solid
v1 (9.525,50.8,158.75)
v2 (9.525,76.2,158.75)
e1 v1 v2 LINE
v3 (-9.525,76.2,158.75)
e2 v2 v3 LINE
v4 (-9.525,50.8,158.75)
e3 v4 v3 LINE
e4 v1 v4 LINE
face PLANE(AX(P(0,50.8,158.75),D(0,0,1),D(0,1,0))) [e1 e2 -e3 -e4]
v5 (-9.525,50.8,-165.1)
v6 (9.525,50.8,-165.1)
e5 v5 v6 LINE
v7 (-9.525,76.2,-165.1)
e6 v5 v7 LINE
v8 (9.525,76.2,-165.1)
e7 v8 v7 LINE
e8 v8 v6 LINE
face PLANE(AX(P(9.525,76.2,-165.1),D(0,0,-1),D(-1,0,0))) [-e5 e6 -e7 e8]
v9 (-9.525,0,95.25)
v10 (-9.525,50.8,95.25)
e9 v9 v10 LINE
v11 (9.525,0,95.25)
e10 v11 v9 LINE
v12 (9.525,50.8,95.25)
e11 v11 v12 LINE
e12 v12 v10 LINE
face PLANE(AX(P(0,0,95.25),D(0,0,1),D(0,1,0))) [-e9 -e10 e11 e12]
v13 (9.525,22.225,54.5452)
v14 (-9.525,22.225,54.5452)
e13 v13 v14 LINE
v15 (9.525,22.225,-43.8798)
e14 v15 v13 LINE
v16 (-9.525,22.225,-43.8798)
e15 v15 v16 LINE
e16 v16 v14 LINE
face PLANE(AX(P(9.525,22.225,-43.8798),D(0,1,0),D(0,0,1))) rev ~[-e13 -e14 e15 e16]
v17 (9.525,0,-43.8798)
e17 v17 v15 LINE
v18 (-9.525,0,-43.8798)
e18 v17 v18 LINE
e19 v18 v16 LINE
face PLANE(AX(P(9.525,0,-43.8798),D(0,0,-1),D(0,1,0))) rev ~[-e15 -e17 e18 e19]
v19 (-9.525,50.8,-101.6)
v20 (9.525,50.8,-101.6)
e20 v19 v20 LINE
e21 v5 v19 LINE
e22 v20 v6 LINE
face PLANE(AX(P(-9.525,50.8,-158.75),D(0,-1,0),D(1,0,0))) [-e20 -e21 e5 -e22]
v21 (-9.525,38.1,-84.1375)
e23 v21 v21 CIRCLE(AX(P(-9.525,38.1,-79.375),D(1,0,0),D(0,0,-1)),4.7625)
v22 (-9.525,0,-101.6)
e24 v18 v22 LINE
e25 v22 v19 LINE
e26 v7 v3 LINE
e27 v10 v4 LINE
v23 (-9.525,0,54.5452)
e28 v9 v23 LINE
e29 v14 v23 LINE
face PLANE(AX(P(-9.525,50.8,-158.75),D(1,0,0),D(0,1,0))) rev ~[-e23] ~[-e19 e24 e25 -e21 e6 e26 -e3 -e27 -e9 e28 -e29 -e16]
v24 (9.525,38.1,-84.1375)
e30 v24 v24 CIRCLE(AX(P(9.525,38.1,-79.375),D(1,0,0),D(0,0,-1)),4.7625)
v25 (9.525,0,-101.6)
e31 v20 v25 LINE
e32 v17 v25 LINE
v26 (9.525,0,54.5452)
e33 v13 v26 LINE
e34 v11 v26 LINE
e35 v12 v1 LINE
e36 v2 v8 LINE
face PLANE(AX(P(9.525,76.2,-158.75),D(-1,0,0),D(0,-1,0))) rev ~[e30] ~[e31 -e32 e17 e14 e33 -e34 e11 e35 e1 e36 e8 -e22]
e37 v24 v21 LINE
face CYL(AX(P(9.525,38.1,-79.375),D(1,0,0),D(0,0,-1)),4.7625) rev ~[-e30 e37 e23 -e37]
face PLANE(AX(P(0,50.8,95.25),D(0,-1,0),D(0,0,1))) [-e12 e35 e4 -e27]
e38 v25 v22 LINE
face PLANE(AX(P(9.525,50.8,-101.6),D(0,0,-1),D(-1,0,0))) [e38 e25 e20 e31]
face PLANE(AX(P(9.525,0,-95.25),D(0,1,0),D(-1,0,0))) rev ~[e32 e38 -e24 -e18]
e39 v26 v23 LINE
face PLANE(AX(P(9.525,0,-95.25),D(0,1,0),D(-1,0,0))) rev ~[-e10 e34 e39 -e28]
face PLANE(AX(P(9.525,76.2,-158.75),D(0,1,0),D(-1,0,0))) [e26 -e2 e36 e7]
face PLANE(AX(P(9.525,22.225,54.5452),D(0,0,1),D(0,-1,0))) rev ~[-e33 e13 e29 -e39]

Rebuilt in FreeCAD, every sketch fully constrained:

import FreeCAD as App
import Part
import Sketcher
Q = App.Units.Quantity

doc = App.newDocument("Part")
params = doc.addObject("Spreadsheet::Sheet", "Params")
for row, (alias, value) in enumerate([
    ("sketch1_width", "2 in"),
    ("sketch1_width2", "1 in"),
    ("sketch1_height", "2.5 in"),
    ("pad1_length", "0.75 in"),
    ("sketch2_height", "2 in"),
    ("sketch2_width", "0.75 in"),
    ("pad2_length", "0.25 in"),
    ("sketch3_height", "1 in"),
    ("sketch3_width", "0.75 in"),
    ("pad3_length", "0.25 in"),
    ("sketch4_diameter", "0.375 in"),
    ("sketch5_width", "0.875 in"),
    ("sketch5_height", "3.875 in"),
], start=1):
    params.set(f"A{row}", alias)
    params.set(f"B{row}", "=" + value)
    params.setAlias(f"B{row}", alias)

body = doc.addObject("PartDesign::Body", "Body")

# Sketch on YZ plane
sketch1 = body.newObject("Sketcher::SketchObject", "Sketch")
sketch1.AttachmentSupport = (doc.getObject("YZ_Plane"), [""])
sketch1.MapMode = "FlatFace"
sketch1.addGeometry(Part.LineSegment(App.Vector(0, 95.25, 0), App.Vector(0, -95.25, 0)), False)
sketch1.addGeometry(Part.LineSegment(App.Vector(0, -95.25, 0), App.Vector(50.8, -95.25, 0)), False)
sketch1.addGeometry(Part.LineSegment(App.Vector(50.8, -95.25, 0), App.Vector(50.8, -158.75, 0)), False)
sketch1.addGeometry(Part.LineSegment(App.Vector(50.8, -158.75, 0), App.Vector(76.2, -158.75, 0)), False)
sketch1.addGeometry(Part.LineSegment(App.Vector(76.2, -158.75, 0), App.Vector(76.2, 158.75, 0)), False)
sketch1.addGeometry(Part.LineSegment(App.Vector(76.2, 158.75, 0), App.Vector(50.8, 158.75, 0)), False)
sketch1.addGeometry(Part.LineSegment(App.Vector(50.8, 158.75, 0), App.Vector(50.8, 95.25, 0)), False)
sketch1.addGeometry(Part.LineSegment(App.Vector(50.8, 95.25, 0), App.Vector(0, 95.25, 0)), False)
sketch1.addConstraint(Sketcher.Constraint("Coincident", 0, 2, 1, 1))
sketch1.addConstraint(Sketcher.Constraint("Coincident", 1, 2, 2, 1))
sketch1.addConstraint(Sketcher.Constraint("Coincident", 2, 2, 3, 1))
sketch1.addConstraint(Sketcher.Constraint("Coincident", 3, 2, 4, 1))
sketch1.addConstraint(Sketcher.Constraint("Coincident", 4, 2, 5, 1))
sketch1.addConstraint(Sketcher.Constraint("Coincident", 5, 2, 6, 1))
sketch1.addConstraint(Sketcher.Constraint("Coincident", 6, 2, 7, 1))
sketch1.addConstraint(Sketcher.Constraint("Coincident", 7, 2, 0, 1))
sketch1.addConstraint(Sketcher.Constraint("Vertical", 0))
sketch1.addConstraint(Sketcher.Constraint("Horizontal", 1))
sketch1.addConstraint(Sketcher.Constraint("Vertical", 2))
sketch1.addConstraint(Sketcher.Constraint("Horizontal", 3))
sketch1.addConstraint(Sketcher.Constraint("Vertical", 4))
sketch1.addConstraint(Sketcher.Constraint("Horizontal", 5))
sketch1.addConstraint(Sketcher.Constraint("Vertical", 6))
sketch1.addConstraint(Sketcher.Constraint("Horizontal", 7))
sketch1.addConstraint(Sketcher.Constraint("Symmetric", 0, 2, 7, 2, -1, 1))
sketch1.addConstraint(Sketcher.Constraint("Symmetric", 2, 2, 5, 2, -1))
sketch1.addConstraint(Sketcher.Constraint("DistanceX", 1, 1, 1, 2, Q("2 in")))
sketch1.addConstraint(Sketcher.Constraint("DistanceX", 3, 1, 3, 2, Q("1 in")))
sketch1.addConstraint(Sketcher.Constraint("DistanceY", 2, 2, 2, 1, Q("2.5 in")))
sketch1.addConstraint(Sketcher.Constraint("DistanceY", 0, 2, -1, 1, Q("3.75 in")))
sketch1.setExpression("Constraints[18]", "Params.sketch1_width")
sketch1.setExpression("Constraints[19]", "Params.sketch1_width2")
sketch1.setExpression("Constraints[20]", "Params.sketch1_height")
pad1 = body.newObject("PartDesign::Pad", "Pad")
pad1.Profile = sketch1
pad1.setExpression("Length", "Params.pad1_length")
pad1.Midplane = True

# Sketch on XY plane
sketch2 = body.newObject("Sketcher::SketchObject", "Sketch001")
sketch2.AttachmentSupport = (doc.getObject("XY_Plane"), [""])
sketch2.MapMode = "FlatFace"
sketch2.AttachmentOffset = App.Placement(App.Vector(0, 0, -3.75 * 25.4), App.Rotation())
sketch2.addGeometry(Part.LineSegment(App.Vector(9.525, 50.8, 0), App.Vector(9.525, 0, 0)), False)
sketch2.addGeometry(Part.LineSegment(App.Vector(9.525, 0, 0), App.Vector(-9.525, 0, 0)), False)
sketch2.addGeometry(Part.LineSegment(App.Vector(-9.525, 0, 0), App.Vector(-9.525, 50.8, 0)), False)
sketch2.addGeometry(Part.LineSegment(App.Vector(-9.525, 50.8, 0), App.Vector(9.525, 50.8, 0)), False)
sketch2.addConstraint(Sketcher.Constraint("Coincident", 0, 2, 1, 1))
sketch2.addConstraint(Sketcher.Constraint("Coincident", 1, 2, 2, 1))
sketch2.addConstraint(Sketcher.Constraint("Coincident", 2, 2, 3, 1))
sketch2.addConstraint(Sketcher.Constraint("Coincident", 3, 2, 0, 1))
sketch2.addConstraint(Sketcher.Constraint("Vertical", 0))
sketch2.addConstraint(Sketcher.Constraint("Horizontal", 1))
sketch2.addConstraint(Sketcher.Constraint("Vertical", 2))
sketch2.addConstraint(Sketcher.Constraint("Horizontal", 3))
sketch2.addConstraint(Sketcher.Constraint("Symmetric", 0, 2, 1, 2, -1, 1))
sketch2.addConstraint(Sketcher.Constraint("DistanceY", 0, 2, 0, 1, Q("2 in")))
sketch2.addConstraint(Sketcher.Constraint("DistanceX", 1, 2, 1, 1, Q("0.75 in")))
sketch2.setExpression("Constraints[9]", "Params.sketch2_height")
sketch2.setExpression("Constraints[10]", "Params.sketch2_width")
pad2 = body.newObject("PartDesign::Pad", "Pad001")
pad2.Profile = sketch2
pad2.setExpression("Length", "Params.pad2_length")
pad2.Reversed = True

# Sketch on XY plane
sketch3 = body.newObject("Sketcher::SketchObject", "Sketch002")
sketch3.AttachmentSupport = (doc.getObject("XY_Plane"), [""])
sketch3.MapMode = "FlatFace"
sketch3.AttachmentOffset = App.Placement(App.Vector(0, 0, -6.25 * 25.4), App.Rotation())
sketch3.addGeometry(Part.LineSegment(App.Vector(-9.525, 76.2, 0), App.Vector(9.525, 76.2, 0)), False)
sketch3.addGeometry(Part.LineSegment(App.Vector(9.525, 76.2, 0), App.Vector(9.525, 50.8, 0)), False)
sketch3.addGeometry(Part.LineSegment(App.Vector(9.525, 50.8, 0), App.Vector(-9.525, 50.8, 0)), False)
sketch3.addGeometry(Part.LineSegment(App.Vector(-9.525, 50.8, 0), App.Vector(-9.525, 76.2, 0)), False)
sketch3.addConstraint(Sketcher.Constraint("Coincident", 0, 2, 1, 1))
sketch3.addConstraint(Sketcher.Constraint("Coincident", 1, 2, 2, 1))
sketch3.addConstraint(Sketcher.Constraint("Coincident", 2, 2, 3, 1))
sketch3.addConstraint(Sketcher.Constraint("Coincident", 3, 2, 0, 1))
sketch3.addConstraint(Sketcher.Constraint("Horizontal", 0))
sketch3.addConstraint(Sketcher.Constraint("Vertical", 1))
sketch3.addConstraint(Sketcher.Constraint("Horizontal", 2))
sketch3.addConstraint(Sketcher.Constraint("Vertical", 3))
sketch3.addConstraint(Sketcher.Constraint("DistanceY", 1, 2, 1, 1, Q("1 in")))
sketch3.addConstraint(Sketcher.Constraint("DistanceY", -1, 1, 0, 2, Q("3 in")))
sketch3.addConstraint(Sketcher.Constraint("DistanceX", 0, 1, 0, 2, Q("0.75 in")))
sketch3.addConstraint(Sketcher.Constraint("DistanceX", -1, 1, 0, 2, Q("0.375 in")))
sketch3.setExpression("Constraints[8]", "Params.sketch3_height")
sketch3.setExpression("Constraints[10]", "Params.sketch3_width")
pad3 = body.newObject("PartDesign::Pad", "Pad002")
pad3.Profile = sketch3
pad3.setExpression("Length", "Params.pad3_length")
pad3.Reversed = True

# Sketch on YZ plane
sketch4 = body.newObject("Sketcher::SketchObject", "Sketch003")
sketch4.AttachmentSupport = (doc.getObject("YZ_Plane"), [""])
sketch4.MapMode = "FlatFace"
sketch4.AttachmentOffset = App.Placement(App.Vector(0, 0, 0.375 * 25.4), App.Rotation())
sketch4.addGeometry(Part.Circle(App.Vector(38.1, -79.375, 0), App.Vector(0, 0, 1), 4.7625), False)
sketch4.addConstraint(Sketcher.Constraint("Diameter", 0, Q("0.375 in")))
sketch4.addConstraint(Sketcher.Constraint("DistanceX", -1, 1, 0, 3, Q("1.5 in")))
sketch4.addConstraint(Sketcher.Constraint("DistanceY", 0, 3, -1, 1, Q("3.125 in")))
sketch4.setExpression("Constraints[0]", "Params.sketch4_diameter")
pocket1 = body.newObject("PartDesign::Pocket", "Pocket")
pocket1.Profile = sketch4
pocket1.Type = "ThroughAll"

# Sketch on YZ plane
sketch5 = body.newObject("Sketcher::SketchObject", "Sketch004")
sketch5.AttachmentSupport = (doc.getObject("YZ_Plane"), [""])
sketch5.MapMode = "FlatFace"
sketch5.AttachmentOffset = App.Placement(App.Vector(0, 0, 0.375 * 25.4), App.Rotation())
sketch5.addGeometry(Part.LineSegment(App.Vector(22.225, 54.5452, 0), App.Vector(0, 54.5452, 0)), False)
sketch5.addGeometry(Part.LineSegment(App.Vector(0, 54.5452, 0), App.Vector(0, -43.8798, 0)), False)
sketch5.addGeometry(Part.LineSegment(App.Vector(0, -43.8798, 0), App.Vector(22.225, -43.8798, 0)), False)
sketch5.addGeometry(Part.LineSegment(App.Vector(22.225, -43.8798, 0), App.Vector(22.225, 54.5452, 0)), False)
sketch5.addConstraint(Sketcher.Constraint("Coincident", 0, 2, 1, 1))
sketch5.addConstraint(Sketcher.Constraint("Coincident", 1, 2, 2, 1))
sketch5.addConstraint(Sketcher.Constraint("Coincident", 2, 2, 3, 1))
sketch5.addConstraint(Sketcher.Constraint("Coincident", 3, 2, 0, 1))
sketch5.addConstraint(Sketcher.Constraint("Horizontal", 0))
sketch5.addConstraint(Sketcher.Constraint("Vertical", 1))
sketch5.addConstraint(Sketcher.Constraint("Horizontal", 2))
sketch5.addConstraint(Sketcher.Constraint("Vertical", 3))
sketch5.addConstraint(Sketcher.Constraint("PointOnObject", 0, 2, -2))
sketch5.addConstraint(Sketcher.Constraint("DistanceX", 0, 2, 0, 1, Q("0.875 in")))
sketch5.addConstraint(Sketcher.Constraint("DistanceY", 1, 2, 1, 1, Q("3.875 in")))
sketch5.addConstraint(Sketcher.Constraint("DistanceY", -1, 1, 0, 2, 54.5452))
sketch5.setExpression("Constraints[9]", "Params.sketch5_width")
sketch5.setExpression("Constraints[10]", "Params.sketch5_height")
pocket2 = body.newObject("PartDesign::Pocket", "Pocket001")
pocket2.Profile = sketch5
pocket2.Type = "ThroughAll"

doc.recompute()
